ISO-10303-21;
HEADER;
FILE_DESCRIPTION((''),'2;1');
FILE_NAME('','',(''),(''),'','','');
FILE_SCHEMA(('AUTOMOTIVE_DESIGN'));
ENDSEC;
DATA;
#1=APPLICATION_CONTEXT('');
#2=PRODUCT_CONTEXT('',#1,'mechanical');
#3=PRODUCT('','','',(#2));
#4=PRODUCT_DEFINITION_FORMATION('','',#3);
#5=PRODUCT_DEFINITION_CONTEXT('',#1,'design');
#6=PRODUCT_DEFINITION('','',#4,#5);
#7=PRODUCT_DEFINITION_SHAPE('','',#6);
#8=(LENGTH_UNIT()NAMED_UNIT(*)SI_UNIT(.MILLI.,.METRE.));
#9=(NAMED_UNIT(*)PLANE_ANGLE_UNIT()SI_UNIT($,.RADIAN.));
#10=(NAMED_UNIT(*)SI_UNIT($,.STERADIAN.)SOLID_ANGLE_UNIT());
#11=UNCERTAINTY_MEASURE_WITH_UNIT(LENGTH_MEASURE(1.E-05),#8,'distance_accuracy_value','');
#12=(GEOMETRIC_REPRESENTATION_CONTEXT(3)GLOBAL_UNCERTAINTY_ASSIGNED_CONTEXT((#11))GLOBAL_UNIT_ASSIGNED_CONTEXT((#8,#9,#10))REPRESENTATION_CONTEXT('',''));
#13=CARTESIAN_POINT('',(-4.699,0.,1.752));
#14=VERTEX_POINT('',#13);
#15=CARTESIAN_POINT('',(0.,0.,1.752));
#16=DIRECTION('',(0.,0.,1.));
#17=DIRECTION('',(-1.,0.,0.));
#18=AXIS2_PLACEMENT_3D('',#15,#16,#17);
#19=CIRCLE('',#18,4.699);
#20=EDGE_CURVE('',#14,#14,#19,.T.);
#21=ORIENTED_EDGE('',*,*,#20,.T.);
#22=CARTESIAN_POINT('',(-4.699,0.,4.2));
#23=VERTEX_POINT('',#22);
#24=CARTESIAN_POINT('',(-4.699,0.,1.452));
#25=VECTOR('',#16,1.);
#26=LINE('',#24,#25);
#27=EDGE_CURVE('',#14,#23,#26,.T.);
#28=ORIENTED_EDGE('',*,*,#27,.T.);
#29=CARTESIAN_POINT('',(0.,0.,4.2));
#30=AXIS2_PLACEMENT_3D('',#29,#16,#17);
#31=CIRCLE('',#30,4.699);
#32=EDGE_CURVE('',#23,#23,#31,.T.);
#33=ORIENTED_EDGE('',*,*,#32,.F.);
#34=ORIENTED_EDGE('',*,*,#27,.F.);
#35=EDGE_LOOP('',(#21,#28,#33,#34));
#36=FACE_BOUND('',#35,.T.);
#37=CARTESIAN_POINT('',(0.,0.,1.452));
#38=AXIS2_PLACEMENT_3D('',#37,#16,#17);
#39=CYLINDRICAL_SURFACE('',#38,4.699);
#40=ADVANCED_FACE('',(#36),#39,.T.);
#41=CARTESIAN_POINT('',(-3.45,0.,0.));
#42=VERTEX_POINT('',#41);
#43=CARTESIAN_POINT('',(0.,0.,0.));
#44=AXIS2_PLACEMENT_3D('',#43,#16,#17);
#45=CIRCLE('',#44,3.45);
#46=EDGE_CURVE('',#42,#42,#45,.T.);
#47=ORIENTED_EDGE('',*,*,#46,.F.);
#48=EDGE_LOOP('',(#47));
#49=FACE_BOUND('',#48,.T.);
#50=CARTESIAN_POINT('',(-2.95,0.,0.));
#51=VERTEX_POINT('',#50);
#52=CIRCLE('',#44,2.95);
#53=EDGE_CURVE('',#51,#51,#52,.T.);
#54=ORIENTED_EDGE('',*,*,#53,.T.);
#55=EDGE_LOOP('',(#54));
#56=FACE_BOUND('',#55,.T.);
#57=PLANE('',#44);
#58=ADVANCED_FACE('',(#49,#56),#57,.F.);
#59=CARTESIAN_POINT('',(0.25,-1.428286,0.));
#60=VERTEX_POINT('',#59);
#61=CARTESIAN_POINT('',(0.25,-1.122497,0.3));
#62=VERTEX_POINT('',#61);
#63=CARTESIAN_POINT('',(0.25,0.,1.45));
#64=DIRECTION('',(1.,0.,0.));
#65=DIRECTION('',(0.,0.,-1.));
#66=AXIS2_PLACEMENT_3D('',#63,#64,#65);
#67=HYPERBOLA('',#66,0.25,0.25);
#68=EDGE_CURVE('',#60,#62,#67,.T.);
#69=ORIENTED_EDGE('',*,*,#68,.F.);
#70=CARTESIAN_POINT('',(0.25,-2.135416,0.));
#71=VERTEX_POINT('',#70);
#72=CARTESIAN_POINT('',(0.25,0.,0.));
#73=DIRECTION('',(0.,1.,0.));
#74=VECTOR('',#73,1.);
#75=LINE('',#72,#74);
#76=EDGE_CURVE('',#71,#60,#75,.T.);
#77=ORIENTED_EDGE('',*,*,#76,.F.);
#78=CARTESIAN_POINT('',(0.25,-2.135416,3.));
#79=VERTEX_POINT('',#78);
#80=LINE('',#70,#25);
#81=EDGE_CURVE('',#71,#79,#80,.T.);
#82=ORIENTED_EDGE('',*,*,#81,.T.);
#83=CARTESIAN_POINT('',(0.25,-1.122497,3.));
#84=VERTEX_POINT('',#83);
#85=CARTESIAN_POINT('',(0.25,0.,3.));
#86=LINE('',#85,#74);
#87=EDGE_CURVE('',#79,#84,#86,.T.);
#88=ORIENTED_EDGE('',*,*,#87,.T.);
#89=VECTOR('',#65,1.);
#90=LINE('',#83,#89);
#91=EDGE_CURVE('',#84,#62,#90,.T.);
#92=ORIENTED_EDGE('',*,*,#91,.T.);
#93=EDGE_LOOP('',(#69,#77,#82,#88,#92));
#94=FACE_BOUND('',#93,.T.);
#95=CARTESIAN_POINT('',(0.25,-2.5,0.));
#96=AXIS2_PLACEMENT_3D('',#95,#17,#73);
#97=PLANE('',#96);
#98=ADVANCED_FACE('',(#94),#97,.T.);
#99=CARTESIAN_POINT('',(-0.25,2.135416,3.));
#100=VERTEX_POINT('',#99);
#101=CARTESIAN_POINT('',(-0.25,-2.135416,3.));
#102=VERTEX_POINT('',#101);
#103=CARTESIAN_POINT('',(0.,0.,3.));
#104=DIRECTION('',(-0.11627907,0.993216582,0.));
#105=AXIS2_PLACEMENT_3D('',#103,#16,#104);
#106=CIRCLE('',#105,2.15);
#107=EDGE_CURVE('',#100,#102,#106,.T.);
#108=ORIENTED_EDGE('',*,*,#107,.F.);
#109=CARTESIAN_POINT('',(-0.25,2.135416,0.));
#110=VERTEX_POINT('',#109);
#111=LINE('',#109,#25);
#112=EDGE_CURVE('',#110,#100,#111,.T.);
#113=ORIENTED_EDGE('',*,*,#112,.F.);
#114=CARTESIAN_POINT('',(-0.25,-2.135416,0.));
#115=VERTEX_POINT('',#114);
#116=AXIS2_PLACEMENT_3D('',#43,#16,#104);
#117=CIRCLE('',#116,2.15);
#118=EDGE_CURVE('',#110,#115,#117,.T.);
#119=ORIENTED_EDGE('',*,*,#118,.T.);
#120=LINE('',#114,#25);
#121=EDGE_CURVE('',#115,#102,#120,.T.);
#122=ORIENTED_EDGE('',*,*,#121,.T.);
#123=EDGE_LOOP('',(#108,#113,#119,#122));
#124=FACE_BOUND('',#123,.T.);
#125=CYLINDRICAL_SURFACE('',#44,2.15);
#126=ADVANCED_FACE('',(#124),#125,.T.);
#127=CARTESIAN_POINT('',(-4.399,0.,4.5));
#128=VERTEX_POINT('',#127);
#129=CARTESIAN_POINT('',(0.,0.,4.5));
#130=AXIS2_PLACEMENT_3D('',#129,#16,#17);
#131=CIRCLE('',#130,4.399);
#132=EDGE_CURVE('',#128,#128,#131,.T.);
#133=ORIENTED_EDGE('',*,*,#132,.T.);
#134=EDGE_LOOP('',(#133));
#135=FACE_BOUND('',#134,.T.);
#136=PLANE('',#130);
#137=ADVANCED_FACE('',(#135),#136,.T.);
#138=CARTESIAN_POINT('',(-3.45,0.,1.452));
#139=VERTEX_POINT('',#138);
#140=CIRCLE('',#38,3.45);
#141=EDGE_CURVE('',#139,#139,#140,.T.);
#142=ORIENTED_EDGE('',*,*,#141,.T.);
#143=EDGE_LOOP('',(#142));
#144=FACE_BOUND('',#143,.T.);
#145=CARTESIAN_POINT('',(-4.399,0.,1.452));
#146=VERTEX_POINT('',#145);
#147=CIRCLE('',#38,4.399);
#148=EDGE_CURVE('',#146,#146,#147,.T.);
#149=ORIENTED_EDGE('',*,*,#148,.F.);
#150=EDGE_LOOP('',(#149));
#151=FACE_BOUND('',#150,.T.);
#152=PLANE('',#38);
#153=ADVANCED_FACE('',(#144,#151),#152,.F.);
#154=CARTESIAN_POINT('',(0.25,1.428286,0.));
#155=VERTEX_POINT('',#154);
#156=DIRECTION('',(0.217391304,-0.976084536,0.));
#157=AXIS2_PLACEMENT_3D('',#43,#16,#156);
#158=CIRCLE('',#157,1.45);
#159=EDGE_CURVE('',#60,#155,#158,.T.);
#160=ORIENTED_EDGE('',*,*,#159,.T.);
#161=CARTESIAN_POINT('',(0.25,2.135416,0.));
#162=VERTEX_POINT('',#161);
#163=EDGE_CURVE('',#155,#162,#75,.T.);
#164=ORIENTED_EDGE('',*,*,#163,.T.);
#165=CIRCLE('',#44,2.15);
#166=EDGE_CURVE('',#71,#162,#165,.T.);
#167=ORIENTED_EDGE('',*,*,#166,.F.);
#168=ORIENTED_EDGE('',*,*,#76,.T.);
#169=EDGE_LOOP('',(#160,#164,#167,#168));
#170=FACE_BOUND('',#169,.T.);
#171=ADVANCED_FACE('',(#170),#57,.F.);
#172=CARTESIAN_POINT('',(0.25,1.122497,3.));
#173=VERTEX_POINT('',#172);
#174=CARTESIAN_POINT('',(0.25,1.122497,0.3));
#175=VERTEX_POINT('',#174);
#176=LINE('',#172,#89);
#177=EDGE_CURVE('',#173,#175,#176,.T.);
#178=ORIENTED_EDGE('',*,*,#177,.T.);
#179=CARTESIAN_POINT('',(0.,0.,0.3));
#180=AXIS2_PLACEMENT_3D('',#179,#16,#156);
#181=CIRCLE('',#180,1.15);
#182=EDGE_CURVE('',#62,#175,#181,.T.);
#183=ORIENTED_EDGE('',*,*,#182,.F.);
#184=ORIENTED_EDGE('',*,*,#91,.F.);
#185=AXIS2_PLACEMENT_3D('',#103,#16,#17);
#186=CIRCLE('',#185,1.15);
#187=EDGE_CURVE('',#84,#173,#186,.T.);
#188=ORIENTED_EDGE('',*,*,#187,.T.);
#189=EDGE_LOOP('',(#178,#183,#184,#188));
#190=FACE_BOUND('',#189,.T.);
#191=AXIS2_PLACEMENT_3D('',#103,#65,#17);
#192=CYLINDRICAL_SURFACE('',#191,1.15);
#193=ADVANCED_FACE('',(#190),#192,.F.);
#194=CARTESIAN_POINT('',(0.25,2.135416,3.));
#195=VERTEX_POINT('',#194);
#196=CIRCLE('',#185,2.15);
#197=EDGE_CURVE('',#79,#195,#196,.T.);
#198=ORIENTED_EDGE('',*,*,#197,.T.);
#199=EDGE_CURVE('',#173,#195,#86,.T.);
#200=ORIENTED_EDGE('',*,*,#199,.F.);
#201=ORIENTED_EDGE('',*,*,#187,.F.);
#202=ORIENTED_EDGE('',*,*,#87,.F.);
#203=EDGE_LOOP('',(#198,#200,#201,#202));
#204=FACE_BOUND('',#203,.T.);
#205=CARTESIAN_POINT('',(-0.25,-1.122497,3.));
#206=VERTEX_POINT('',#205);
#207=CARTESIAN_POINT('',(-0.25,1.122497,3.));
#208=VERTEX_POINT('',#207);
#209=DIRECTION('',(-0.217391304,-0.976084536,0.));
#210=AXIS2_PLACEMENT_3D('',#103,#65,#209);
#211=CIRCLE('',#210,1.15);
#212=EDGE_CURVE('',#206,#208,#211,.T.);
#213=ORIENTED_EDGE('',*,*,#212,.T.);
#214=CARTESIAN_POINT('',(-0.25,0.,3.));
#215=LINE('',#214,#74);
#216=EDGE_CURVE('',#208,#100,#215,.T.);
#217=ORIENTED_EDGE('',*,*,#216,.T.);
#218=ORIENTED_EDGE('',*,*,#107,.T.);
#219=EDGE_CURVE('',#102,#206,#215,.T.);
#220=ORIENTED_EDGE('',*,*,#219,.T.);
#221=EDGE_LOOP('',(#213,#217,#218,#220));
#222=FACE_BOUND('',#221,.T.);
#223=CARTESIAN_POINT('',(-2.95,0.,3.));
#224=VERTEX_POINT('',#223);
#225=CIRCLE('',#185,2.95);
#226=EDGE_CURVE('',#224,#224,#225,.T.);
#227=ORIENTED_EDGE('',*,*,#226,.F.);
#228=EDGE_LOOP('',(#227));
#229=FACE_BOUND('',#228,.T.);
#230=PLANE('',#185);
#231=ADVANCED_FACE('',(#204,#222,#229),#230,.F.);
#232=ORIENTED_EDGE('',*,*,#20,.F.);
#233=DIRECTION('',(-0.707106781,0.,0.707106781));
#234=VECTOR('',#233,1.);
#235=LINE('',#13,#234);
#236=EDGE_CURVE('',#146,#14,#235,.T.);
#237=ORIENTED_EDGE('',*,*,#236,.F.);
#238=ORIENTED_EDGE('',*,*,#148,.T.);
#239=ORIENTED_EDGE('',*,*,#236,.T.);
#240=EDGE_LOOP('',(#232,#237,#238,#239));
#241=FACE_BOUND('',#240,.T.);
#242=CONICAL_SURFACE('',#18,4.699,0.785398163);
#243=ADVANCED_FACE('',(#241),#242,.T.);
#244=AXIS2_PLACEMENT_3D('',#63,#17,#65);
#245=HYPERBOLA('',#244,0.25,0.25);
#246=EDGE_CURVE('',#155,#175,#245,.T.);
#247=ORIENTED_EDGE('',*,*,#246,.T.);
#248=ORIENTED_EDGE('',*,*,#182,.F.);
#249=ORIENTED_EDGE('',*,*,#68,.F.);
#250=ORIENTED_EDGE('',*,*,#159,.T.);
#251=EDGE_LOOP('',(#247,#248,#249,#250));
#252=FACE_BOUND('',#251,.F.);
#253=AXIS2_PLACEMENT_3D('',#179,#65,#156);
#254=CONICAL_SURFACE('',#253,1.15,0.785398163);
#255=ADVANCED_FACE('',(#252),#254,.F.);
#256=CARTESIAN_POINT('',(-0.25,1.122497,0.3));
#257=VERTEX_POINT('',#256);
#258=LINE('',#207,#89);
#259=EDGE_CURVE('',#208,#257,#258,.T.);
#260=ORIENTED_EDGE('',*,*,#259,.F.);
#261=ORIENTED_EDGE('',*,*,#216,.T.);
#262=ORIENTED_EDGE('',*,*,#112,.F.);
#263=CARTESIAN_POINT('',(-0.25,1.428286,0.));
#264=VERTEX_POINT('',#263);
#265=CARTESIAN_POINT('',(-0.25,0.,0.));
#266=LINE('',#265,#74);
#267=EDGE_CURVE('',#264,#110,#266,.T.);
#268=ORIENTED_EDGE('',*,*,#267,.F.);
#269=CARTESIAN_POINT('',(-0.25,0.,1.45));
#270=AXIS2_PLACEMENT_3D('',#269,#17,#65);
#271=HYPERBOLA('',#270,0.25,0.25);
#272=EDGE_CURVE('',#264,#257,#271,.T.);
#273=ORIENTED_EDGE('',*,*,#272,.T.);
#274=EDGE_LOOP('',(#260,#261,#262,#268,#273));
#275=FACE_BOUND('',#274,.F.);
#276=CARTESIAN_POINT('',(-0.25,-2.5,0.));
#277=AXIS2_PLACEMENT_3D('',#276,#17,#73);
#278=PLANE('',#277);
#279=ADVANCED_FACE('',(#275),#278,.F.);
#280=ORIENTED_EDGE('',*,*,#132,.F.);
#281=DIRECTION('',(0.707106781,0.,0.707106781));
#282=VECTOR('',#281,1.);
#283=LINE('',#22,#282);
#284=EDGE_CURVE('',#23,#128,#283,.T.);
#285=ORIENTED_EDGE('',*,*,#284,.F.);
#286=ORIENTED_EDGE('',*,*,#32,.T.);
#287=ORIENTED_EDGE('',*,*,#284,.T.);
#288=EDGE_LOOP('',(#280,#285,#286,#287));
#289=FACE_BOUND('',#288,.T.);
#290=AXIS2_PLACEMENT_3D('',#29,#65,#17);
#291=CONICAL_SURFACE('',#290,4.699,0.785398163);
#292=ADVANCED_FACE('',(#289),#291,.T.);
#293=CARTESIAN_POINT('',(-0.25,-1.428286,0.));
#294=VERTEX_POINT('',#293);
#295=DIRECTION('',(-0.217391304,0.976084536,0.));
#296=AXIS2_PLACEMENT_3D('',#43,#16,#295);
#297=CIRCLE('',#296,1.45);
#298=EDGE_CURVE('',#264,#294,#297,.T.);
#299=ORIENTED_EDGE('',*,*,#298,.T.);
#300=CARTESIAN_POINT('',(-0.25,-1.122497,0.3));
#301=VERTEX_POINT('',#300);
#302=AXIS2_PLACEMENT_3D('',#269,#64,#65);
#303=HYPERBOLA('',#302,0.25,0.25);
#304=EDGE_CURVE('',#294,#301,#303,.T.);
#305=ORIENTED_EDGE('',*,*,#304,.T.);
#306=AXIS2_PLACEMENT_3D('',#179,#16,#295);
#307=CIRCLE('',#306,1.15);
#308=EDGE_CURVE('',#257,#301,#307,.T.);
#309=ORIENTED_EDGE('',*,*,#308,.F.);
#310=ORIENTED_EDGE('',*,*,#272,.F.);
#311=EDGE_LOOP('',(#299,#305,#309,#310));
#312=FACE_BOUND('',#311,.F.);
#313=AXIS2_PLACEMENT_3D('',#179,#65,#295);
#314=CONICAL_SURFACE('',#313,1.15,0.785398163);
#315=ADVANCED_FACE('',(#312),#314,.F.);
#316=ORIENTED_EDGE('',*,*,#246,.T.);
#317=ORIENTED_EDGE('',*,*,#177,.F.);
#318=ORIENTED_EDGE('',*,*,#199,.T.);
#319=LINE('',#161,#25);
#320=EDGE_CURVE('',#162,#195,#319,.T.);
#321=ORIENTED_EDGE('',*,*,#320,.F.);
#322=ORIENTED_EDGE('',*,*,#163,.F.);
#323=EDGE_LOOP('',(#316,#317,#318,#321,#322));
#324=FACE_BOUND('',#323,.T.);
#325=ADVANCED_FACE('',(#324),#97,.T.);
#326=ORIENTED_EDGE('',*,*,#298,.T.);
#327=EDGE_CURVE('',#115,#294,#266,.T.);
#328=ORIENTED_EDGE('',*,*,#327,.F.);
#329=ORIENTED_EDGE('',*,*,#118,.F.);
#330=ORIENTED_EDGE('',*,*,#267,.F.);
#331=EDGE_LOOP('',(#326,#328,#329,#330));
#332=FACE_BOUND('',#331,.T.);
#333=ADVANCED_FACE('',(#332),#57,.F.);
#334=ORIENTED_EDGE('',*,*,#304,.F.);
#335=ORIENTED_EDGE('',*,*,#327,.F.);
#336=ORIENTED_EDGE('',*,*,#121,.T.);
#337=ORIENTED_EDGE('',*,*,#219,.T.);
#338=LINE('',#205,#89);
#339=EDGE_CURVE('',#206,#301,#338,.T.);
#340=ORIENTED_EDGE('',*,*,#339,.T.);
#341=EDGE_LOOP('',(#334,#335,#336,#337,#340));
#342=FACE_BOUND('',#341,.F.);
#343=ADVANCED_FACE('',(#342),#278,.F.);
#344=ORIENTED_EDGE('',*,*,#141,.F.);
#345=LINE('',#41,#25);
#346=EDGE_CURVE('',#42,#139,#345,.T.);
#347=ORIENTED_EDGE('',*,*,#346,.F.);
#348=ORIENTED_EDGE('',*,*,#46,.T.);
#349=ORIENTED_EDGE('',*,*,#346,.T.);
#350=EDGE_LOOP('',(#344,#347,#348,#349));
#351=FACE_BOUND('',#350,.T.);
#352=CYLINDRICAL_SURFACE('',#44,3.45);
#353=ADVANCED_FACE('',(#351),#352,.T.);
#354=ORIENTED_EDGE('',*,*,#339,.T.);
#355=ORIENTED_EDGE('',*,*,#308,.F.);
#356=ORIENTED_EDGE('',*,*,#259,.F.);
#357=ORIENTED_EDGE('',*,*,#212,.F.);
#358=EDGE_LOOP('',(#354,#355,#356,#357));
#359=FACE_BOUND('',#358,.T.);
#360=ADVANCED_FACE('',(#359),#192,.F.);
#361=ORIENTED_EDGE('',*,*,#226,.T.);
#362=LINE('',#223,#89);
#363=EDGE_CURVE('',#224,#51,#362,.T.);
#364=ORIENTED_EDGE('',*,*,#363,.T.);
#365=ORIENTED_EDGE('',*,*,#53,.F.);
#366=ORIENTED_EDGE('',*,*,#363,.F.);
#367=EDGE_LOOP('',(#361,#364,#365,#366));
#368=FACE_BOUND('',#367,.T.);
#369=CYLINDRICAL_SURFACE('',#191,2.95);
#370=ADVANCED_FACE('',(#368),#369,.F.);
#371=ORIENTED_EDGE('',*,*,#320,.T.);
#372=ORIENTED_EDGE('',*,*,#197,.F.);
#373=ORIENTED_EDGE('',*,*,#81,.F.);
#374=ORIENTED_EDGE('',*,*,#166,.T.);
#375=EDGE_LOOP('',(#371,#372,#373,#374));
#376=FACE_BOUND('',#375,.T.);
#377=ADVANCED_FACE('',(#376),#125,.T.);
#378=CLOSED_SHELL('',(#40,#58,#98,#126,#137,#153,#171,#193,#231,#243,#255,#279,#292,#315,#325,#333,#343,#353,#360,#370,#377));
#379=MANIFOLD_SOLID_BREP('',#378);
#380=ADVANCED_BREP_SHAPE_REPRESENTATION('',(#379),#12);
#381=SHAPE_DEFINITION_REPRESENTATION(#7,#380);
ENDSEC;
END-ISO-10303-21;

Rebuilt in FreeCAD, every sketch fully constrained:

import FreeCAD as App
import Part
import Sketcher

V = App.Vector
Q = App.Units.Quantity


def edges_at(feature, points):
    """Names of the edges that pass closest to the given points."""
    edges = feature.Shape.Edges
    near = lambda p: min(range(len(edges)), key=lambda i: edges[i].distToShape(Part.Vertex(*p))[0])
    return sorted({f"Edge{near(p) + 1}" for p in points})


def add_polygon(sketch, points):
    """Adds a closed chain of lines whose ends are joined by coincident constraints."""
    first, n = sketch.GeometryCount, len(points)
    for a, b in zip(points, points[1:] + points[:1]):
        sketch.addGeometry(Part.LineSegment(App.Vector(*a, 0), App.Vector(*b, 0)), False)
    for i in range(n):
        sketch.addConstraint(Sketcher.Constraint("Coincident", first + i, 2, first + (i + 1) % n, 1))

doc = App.newDocument("Part")
body = doc.addObject("PartDesign::Body", "Body")

# Sketch on XZ plane
sketch1 = body.newObject("Sketcher::SketchObject", "Sketch")
sketch1.AttachmentSupport = (doc.getObject("XZ_Plane"), [""])
sketch1.MapMode = "FlatFace"
add_polygon(sketch1, [(-3.5, 1.5), (-3.5, 0), (-3, 0), (-3, 3), (-2.1, 3), (-2.1, 0), (-1.1, 0), (-1.1, 3), (0, 3), (0, 4.5), (-4.7, 4.5), (-4.7, 1.5)])  # lines 0-11
sketch1.addConstraint([
    Sketcher.Constraint("Vertical", 0),
    Sketcher.Constraint("Horizontal", 1),
    Sketcher.Constraint("Vertical", 2),
    Sketcher.Constraint("Horizontal", 3),
    Sketcher.Constraint("Vertical", 4),
    Sketcher.Constraint("Horizontal", 5),
    Sketcher.Constraint("Vertical", 6),
    Sketcher.Constraint("Horizontal", 7),
    Sketcher.Constraint("Vertical", 8),
    Sketcher.Constraint("Horizontal", 9),
    Sketcher.Constraint("Vertical", 10),
    Sketcher.Constraint("Horizontal", 11),
    Sketcher.Constraint("PointOnObject", 0, 2, -1),
    Sketcher.Constraint("PointOnObject", 4, 2, -1),
    Sketcher.Constraint("PointOnObject", 7, 2, -2),
    Sketcher.Constraint("Horizontal", 3, 2, 6, 2),
    Sketcher.Constraint("DistanceX", 5, 1, 5, 2, Q("1 mm")),
    Sketcher.Constraint("DistanceY", 2, 1, 2, 2, Q("3 mm")),
    Sketcher.Constraint("DistanceX", 1, 1, 1, 2, Q("0.5 mm")),
    Sketcher.Constraint("DistanceX", 3, 1, 3, 2, Q("0.8 mm")),
    Sketcher.Constraint("DistanceY", 8, 1, 8, 2, Q("1.5 mm")),
    Sketcher.Constraint("DistanceX", 7, 1, 7, 2, Q("1.15 mm")),
    Sketcher.Constraint("DistanceX", 9, 2, 9, 1, Q("4.699 mm")),
    Sketcher.Constraint("DistanceY", 0, 2, 0, 1, Q("1.452 mm")),
])
revolution = body.newObject("PartDesign::Revolution", "Revolution")
revolution.Profile = sketch1
revolution.ReferenceAxis = (sketch1, ["V_Axis"])
revolution.Angle = 360

# Sketch on XY plane
sketch2 = body.newObject("Sketcher::SketchObject", "Sketch001")
sketch2.AttachmentSupport = (doc.getObject("XY_Plane"), [""])
sketch2.MapMode = "FlatFace"
add_polygon(sketch2, [(-0.2, 2.5), (-0.2, -2.5), (0.2, -2.5), (0.2, 2.5)])  # lines 0-3
sketch2.addConstraint([
    Sketcher.Constraint("Vertical", 0),
    Sketcher.Constraint("Horizontal", 1),
    Sketcher.Constraint("Vertical", 2),
    Sketcher.Constraint("Horizontal", 3),
    Sketcher.Constraint("Symmetric", 0, 2, 2, 2, -1, 1),
    Sketcher.Constraint("DistanceY", 0, 2, 0, 1, Q("5 mm")),
    Sketcher.Constraint("DistanceX", 1, 1, 1, 2, Q("0.5 mm")),
])
pocket1 = body.newObject("PartDesign::Pocket", "Pocket")
pocket1.Profile = sketch2
pocket1.Length = 3
pocket1.Reversed = True
doc.recompute()

chamfer = body.newObject("PartDesign::Chamfer", "Chamfer")
chamfer.Base = (pocket1, edges_at(pocket1, [
    (4.699, 0, 4.5),
    (4.699, 0, 1.452),
    (1.15, 0, 0),
    (-1.15, 0, 0),
]))
chamfer.Size = 0.3

doc.recompute()
